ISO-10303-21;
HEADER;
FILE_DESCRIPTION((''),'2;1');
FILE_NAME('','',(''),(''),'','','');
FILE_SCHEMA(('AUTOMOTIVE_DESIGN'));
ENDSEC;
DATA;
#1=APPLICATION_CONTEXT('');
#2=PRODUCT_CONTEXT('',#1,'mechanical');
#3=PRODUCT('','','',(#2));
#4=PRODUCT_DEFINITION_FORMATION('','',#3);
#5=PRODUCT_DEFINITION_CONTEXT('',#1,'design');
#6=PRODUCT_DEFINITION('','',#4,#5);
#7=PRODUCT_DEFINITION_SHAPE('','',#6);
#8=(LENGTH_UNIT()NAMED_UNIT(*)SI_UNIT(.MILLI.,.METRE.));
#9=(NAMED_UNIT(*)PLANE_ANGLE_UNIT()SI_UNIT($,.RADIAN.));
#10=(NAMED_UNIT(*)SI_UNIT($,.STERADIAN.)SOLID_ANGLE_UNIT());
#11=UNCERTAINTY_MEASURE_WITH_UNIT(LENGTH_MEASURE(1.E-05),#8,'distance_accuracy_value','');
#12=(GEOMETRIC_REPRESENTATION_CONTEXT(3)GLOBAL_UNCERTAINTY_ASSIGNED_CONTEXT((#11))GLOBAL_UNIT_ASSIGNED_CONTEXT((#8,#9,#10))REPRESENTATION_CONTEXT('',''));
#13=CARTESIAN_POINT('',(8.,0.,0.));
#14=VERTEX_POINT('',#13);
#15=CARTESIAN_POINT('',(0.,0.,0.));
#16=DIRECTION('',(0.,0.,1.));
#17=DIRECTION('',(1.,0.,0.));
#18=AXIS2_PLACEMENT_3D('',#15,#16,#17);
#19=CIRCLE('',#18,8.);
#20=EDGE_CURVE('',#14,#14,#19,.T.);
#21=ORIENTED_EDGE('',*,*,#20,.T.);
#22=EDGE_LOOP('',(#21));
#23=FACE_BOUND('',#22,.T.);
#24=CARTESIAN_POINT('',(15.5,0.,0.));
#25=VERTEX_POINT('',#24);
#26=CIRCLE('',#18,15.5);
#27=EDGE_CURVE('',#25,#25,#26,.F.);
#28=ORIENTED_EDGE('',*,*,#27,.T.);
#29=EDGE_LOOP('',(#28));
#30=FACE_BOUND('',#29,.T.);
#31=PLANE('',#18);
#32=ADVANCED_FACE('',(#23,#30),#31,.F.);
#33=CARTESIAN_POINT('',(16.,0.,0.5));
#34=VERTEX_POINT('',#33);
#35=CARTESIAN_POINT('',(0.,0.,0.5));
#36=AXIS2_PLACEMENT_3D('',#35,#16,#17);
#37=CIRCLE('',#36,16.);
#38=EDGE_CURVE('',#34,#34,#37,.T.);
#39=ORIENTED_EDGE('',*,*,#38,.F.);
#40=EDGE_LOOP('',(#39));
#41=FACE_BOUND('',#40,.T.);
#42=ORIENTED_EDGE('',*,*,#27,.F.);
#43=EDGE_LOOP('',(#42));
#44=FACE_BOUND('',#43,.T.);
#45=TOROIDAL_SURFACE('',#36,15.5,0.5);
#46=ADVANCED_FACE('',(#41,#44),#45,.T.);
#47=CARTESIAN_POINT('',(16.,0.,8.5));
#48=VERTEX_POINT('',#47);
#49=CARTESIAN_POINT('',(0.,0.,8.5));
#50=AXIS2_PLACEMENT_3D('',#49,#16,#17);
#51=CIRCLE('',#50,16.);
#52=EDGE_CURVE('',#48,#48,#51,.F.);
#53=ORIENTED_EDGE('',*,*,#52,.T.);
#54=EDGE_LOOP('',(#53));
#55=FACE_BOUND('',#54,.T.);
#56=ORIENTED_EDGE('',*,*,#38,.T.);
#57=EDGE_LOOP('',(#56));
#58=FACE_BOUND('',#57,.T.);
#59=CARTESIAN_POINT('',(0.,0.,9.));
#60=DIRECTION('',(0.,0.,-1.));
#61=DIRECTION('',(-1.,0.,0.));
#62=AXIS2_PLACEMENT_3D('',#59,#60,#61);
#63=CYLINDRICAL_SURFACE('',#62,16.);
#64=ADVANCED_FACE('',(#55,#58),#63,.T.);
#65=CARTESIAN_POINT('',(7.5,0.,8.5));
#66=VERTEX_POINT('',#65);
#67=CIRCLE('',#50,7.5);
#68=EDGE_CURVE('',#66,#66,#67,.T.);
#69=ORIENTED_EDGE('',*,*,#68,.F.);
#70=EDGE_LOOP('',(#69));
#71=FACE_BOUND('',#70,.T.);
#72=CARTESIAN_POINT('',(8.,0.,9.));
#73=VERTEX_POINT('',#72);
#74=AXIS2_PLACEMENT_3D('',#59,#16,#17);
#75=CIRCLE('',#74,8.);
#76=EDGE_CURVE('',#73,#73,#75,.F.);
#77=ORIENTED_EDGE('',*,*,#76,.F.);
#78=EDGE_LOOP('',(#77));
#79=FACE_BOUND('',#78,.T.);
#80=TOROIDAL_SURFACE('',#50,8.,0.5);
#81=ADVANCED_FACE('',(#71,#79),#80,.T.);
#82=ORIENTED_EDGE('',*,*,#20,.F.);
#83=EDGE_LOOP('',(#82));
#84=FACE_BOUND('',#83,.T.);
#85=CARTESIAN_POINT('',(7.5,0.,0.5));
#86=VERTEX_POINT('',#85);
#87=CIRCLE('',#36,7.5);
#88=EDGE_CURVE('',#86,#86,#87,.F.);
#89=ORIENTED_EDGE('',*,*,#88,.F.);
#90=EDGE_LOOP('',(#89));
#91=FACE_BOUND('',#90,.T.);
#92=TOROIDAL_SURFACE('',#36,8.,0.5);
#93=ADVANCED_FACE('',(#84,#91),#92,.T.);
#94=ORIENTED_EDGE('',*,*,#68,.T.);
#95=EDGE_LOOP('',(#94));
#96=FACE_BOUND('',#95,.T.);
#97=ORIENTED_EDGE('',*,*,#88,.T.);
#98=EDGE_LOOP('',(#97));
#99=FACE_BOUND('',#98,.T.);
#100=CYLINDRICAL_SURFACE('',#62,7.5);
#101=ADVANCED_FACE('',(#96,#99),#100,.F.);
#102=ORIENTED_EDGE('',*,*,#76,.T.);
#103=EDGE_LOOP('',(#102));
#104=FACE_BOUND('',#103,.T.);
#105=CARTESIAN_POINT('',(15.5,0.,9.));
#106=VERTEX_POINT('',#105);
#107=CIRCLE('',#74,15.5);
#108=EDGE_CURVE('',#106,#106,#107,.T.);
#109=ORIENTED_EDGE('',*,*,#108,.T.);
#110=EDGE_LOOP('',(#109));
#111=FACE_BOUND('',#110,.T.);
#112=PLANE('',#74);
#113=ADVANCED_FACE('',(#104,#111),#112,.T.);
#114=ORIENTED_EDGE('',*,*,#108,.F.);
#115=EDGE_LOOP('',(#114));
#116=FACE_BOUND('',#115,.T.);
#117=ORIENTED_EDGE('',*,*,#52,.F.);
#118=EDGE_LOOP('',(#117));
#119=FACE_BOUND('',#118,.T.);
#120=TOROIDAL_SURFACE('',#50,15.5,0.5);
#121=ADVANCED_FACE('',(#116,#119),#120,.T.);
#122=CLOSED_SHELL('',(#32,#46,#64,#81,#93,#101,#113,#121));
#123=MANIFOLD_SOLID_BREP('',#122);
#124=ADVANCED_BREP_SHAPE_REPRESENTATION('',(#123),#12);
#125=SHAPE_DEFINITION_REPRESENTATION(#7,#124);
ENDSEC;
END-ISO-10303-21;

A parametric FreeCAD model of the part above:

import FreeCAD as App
import Part
import Sketcher

V = App.Vector


def edges_at(feature, points):
    """Names of the edges that pass closest to the given points."""
    edges = feature.Shape.Edges
    near = lambda p: min(range(len(edges)), key=lambda i: edges[i].distToShape(Part.Vertex(*p))[0])
    return sorted({f"Edge{near(p) + 1}" for p in points})

doc = App.newDocument("Part")
body = doc.addObject("PartDesign::Body", "Body")

sketch1 = body.newObject("Sketcher::SketchObject", "Sketch")
sketch1.AttachmentSupport = (doc.getObject("XY_Plane"), [""])
sketch1.MapMode = "FlatFace"
sketch1.addGeometry(Part.Circle(V(0, 0, 0), V(0, 0, 1), 16), False)
sketch1.addGeometry(Part.Circle(V(0, 0, 0), V(0, 0, 1), 8), False)
sketch1.addConstraint(Sketcher.Constraint("Coincident", 0, 3, -1, 1))
sketch1.addConstraint(Sketcher.Constraint("Coincident", 1, 3, -1, 1))
sketch1.addConstraint(Sketcher.Constraint("Diameter", 0, 32.0))
sketch1.addConstraint(Sketcher.Constraint("Diameter", 1, 15.0))
pad1 = body.newObject("PartDesign::Pad", "Pad")
pad1.Profile = sketch1
pad1.Length = 9
doc.recompute()

fillet = body.newObject("PartDesign::Fillet", "Fillet")
fillet.Base = (pad1, edges_at(pad1, [
    (-16, 0, 0),
    (-16, 0, 9),
    (-7.5, 0, 0),
    (-7.5, 0, 9),
]))
fillet.Radius = 0.5

doc.recompute()
